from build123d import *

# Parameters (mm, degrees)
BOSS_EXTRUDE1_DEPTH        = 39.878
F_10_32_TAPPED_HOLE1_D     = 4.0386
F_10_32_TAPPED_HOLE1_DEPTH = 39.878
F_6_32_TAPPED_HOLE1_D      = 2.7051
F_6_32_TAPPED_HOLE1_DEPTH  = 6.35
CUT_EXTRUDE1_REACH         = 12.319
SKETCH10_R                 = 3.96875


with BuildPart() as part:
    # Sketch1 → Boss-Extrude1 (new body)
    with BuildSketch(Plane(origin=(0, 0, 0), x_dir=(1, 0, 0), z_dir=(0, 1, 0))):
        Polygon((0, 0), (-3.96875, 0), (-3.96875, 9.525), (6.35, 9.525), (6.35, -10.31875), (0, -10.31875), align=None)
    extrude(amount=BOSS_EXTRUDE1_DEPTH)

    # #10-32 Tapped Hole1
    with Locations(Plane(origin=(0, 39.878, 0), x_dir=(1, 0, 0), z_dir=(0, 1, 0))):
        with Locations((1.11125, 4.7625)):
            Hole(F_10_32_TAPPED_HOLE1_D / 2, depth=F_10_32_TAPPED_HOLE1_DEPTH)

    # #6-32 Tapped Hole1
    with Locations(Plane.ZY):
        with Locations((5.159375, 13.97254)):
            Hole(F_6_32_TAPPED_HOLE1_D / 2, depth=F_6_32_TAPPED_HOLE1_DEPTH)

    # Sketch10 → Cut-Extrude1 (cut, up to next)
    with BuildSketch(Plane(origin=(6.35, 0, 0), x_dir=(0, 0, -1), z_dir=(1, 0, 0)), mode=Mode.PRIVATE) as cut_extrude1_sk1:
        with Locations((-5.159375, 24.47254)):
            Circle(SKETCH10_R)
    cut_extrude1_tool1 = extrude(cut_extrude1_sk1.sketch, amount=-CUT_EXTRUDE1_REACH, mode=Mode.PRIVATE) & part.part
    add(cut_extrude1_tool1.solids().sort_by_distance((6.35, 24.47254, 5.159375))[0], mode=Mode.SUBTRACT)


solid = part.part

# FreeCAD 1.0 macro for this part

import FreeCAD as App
import Part
import Sketcher
from FreeCAD import Vector
Q = App.Units.Quantity


def add_polygon(sketch, points):
    """Adds a closed chain of lines whose ends are joined by coincident constraints."""
    first, n = sketch.GeometryCount, len(points)
    for a, b in zip(points, points[1:] + points[:1]):
        sketch.addGeometry(Part.LineSegment(App.Vector(*a, 0), App.Vector(*b, 0)), False)
    for i in range(n):
        sketch.addConstraint(Sketcher.Constraint("Coincident", first + i, 2, first + (i + 1) % n, 1))

doc = App.newDocument("Part")
body = doc.addObject("PartDesign::Body", "Body")

# Sketch on XZ plane
sketch1 = body.newObject("Sketcher::SketchObject", "Sketch")
sketch1.AttachmentSupport = (doc.getObject("XZ_Plane"), [""])
sketch1.MapMode = "FlatFace"
add_polygon(sketch1, [(-4, 0), (0, 0), (0, 10.3), (6.3, 10.3), (6.3, -9.5), (-4, -9.5)])  # lines 0-5
sketch1.addConstraint([
    Sketcher.Constraint("Horizontal", 0),
    Sketcher.Constraint("Vertical", 1),
    Sketcher.Constraint("Horizontal", 2),
    Sketcher.Constraint("Vertical", 3),
    Sketcher.Constraint("Horizontal", 4),
    Sketcher.Constraint("Vertical", 5),
    Sketcher.Constraint("Coincident", 0, 2, -1, 1),
    Sketcher.Constraint("Equal", 4, 1),
    Sketcher.Constraint("DistanceX", 2, 1, 2, 2, Q("0.25 in")),
    Sketcher.Constraint("DistanceX", 0, 1, 0, 2, Q("0.15625 in")),
    Sketcher.Constraint("DistanceY", 3, 2, 3, 1, Q("0.78125 in")),
])
pad1 = body.newObject("PartDesign::Pad", "Pad")
pad1.Profile = sketch1
pad1.Length = Q("1.57 in")
pad1.Reversed = True

# Sketch on XZ plane
sketch2 = body.newObject("Sketcher::SketchObject", "Sketch001")
sketch2.AttachmentSupport = (doc.getObject("XZ_Plane"), [""])
sketch2.MapMode = "FlatFace"
sketch2.AttachmentOffset = App.Placement(Vector(0, 0, -1.57 * 25.4), App.Rotation())
sketch2.addGeometry(Part.Circle(Vector(1.1, -4.8, 0), Vector(0, 0, 1), 2), False)
sketch2.addConstraint([
    Sketcher.Constraint("Diameter", 0, Q("0.159 in")),
    Sketcher.Constraint("DistanceY", 0, 3, -1, 1, Q("0.1875 in")),
    Sketcher.Constraint("DistanceX", -1, 1, 0, 3, 1.11125),
])
doc.recompute()
hole = body.newObject("PartDesign::Hole", "Hole")
hole.Profile = sketch2
hole.ThreadType = "None"
hole.Diameter = Q("0.159 in")
hole.DepthType = "Dimension"
hole.Depth = Q("1.57 in")
hole.DrillPoint = "Flat"
hole.Reversed = True

# Sketch on YZ plane
sketch3 = body.newObject("Sketcher::SketchObject", "Sketch002")
sketch3.AttachmentSupport = (doc.getObject("YZ_Plane"), [""])
sketch3.MapMode = "FlatFace"
sketch3.addGeometry(Part.Circle(Vector(14, 5.2, 0), Vector(0, 0, 1), 1.4), False)
sketch3.addConstraint([
    Sketcher.Constraint("Diameter", 0, Q("0.1065 in")),
    Sketcher.Constraint("DistanceY", -1, 1, 0, 3, Q("0.203125 in")),
    Sketcher.Constraint("DistanceX", -1, 1, 0, 3, Q("0.5501 in")),
])
doc.recompute()
hole2 = body.newObject("PartDesign::Hole", "Hole001")
hole2.Profile = sketch3
hole2.ThreadType = "None"
hole2.Diameter = Q("0.1065 in")
hole2.DepthType = "Dimension"
hole2.Depth = Q("0.25 in")
hole2.DrillPoint = "Flat"
hole2.Reversed = True

# Sketch on YZ plane
sketch4 = body.newObject("Sketcher::SketchObject", "Sketch003")
sketch4.AttachmentSupport = (doc.getObject("YZ_Plane"), [""])
sketch4.MapMode = "FlatFace"
sketch4.AttachmentOffset = App.Placement(Vector(0, 0, 0.25 * 25.4), App.Rotation())
sketch4.addGeometry(Part.Circle(Vector(24.5, 5.2, 0), Vector(0, 0, 1), 4), False)
sketch4.addConstraint([
    Sketcher.Constraint("Diameter", 0, Q("0.3125 in")),
    Sketcher.Constraint("DistanceY", -1, 1, 0, 3, Q("0.203125 in")),
    Sketcher.Constraint("DistanceX", -1, 1, 0, 3, 24.47254),
])
pocket1 = body.newObject("PartDesign::Pocket", "Pocket")
pocket1.Profile = sketch4
pocket1.Type = "UpToFirst"

doc.recompute()
